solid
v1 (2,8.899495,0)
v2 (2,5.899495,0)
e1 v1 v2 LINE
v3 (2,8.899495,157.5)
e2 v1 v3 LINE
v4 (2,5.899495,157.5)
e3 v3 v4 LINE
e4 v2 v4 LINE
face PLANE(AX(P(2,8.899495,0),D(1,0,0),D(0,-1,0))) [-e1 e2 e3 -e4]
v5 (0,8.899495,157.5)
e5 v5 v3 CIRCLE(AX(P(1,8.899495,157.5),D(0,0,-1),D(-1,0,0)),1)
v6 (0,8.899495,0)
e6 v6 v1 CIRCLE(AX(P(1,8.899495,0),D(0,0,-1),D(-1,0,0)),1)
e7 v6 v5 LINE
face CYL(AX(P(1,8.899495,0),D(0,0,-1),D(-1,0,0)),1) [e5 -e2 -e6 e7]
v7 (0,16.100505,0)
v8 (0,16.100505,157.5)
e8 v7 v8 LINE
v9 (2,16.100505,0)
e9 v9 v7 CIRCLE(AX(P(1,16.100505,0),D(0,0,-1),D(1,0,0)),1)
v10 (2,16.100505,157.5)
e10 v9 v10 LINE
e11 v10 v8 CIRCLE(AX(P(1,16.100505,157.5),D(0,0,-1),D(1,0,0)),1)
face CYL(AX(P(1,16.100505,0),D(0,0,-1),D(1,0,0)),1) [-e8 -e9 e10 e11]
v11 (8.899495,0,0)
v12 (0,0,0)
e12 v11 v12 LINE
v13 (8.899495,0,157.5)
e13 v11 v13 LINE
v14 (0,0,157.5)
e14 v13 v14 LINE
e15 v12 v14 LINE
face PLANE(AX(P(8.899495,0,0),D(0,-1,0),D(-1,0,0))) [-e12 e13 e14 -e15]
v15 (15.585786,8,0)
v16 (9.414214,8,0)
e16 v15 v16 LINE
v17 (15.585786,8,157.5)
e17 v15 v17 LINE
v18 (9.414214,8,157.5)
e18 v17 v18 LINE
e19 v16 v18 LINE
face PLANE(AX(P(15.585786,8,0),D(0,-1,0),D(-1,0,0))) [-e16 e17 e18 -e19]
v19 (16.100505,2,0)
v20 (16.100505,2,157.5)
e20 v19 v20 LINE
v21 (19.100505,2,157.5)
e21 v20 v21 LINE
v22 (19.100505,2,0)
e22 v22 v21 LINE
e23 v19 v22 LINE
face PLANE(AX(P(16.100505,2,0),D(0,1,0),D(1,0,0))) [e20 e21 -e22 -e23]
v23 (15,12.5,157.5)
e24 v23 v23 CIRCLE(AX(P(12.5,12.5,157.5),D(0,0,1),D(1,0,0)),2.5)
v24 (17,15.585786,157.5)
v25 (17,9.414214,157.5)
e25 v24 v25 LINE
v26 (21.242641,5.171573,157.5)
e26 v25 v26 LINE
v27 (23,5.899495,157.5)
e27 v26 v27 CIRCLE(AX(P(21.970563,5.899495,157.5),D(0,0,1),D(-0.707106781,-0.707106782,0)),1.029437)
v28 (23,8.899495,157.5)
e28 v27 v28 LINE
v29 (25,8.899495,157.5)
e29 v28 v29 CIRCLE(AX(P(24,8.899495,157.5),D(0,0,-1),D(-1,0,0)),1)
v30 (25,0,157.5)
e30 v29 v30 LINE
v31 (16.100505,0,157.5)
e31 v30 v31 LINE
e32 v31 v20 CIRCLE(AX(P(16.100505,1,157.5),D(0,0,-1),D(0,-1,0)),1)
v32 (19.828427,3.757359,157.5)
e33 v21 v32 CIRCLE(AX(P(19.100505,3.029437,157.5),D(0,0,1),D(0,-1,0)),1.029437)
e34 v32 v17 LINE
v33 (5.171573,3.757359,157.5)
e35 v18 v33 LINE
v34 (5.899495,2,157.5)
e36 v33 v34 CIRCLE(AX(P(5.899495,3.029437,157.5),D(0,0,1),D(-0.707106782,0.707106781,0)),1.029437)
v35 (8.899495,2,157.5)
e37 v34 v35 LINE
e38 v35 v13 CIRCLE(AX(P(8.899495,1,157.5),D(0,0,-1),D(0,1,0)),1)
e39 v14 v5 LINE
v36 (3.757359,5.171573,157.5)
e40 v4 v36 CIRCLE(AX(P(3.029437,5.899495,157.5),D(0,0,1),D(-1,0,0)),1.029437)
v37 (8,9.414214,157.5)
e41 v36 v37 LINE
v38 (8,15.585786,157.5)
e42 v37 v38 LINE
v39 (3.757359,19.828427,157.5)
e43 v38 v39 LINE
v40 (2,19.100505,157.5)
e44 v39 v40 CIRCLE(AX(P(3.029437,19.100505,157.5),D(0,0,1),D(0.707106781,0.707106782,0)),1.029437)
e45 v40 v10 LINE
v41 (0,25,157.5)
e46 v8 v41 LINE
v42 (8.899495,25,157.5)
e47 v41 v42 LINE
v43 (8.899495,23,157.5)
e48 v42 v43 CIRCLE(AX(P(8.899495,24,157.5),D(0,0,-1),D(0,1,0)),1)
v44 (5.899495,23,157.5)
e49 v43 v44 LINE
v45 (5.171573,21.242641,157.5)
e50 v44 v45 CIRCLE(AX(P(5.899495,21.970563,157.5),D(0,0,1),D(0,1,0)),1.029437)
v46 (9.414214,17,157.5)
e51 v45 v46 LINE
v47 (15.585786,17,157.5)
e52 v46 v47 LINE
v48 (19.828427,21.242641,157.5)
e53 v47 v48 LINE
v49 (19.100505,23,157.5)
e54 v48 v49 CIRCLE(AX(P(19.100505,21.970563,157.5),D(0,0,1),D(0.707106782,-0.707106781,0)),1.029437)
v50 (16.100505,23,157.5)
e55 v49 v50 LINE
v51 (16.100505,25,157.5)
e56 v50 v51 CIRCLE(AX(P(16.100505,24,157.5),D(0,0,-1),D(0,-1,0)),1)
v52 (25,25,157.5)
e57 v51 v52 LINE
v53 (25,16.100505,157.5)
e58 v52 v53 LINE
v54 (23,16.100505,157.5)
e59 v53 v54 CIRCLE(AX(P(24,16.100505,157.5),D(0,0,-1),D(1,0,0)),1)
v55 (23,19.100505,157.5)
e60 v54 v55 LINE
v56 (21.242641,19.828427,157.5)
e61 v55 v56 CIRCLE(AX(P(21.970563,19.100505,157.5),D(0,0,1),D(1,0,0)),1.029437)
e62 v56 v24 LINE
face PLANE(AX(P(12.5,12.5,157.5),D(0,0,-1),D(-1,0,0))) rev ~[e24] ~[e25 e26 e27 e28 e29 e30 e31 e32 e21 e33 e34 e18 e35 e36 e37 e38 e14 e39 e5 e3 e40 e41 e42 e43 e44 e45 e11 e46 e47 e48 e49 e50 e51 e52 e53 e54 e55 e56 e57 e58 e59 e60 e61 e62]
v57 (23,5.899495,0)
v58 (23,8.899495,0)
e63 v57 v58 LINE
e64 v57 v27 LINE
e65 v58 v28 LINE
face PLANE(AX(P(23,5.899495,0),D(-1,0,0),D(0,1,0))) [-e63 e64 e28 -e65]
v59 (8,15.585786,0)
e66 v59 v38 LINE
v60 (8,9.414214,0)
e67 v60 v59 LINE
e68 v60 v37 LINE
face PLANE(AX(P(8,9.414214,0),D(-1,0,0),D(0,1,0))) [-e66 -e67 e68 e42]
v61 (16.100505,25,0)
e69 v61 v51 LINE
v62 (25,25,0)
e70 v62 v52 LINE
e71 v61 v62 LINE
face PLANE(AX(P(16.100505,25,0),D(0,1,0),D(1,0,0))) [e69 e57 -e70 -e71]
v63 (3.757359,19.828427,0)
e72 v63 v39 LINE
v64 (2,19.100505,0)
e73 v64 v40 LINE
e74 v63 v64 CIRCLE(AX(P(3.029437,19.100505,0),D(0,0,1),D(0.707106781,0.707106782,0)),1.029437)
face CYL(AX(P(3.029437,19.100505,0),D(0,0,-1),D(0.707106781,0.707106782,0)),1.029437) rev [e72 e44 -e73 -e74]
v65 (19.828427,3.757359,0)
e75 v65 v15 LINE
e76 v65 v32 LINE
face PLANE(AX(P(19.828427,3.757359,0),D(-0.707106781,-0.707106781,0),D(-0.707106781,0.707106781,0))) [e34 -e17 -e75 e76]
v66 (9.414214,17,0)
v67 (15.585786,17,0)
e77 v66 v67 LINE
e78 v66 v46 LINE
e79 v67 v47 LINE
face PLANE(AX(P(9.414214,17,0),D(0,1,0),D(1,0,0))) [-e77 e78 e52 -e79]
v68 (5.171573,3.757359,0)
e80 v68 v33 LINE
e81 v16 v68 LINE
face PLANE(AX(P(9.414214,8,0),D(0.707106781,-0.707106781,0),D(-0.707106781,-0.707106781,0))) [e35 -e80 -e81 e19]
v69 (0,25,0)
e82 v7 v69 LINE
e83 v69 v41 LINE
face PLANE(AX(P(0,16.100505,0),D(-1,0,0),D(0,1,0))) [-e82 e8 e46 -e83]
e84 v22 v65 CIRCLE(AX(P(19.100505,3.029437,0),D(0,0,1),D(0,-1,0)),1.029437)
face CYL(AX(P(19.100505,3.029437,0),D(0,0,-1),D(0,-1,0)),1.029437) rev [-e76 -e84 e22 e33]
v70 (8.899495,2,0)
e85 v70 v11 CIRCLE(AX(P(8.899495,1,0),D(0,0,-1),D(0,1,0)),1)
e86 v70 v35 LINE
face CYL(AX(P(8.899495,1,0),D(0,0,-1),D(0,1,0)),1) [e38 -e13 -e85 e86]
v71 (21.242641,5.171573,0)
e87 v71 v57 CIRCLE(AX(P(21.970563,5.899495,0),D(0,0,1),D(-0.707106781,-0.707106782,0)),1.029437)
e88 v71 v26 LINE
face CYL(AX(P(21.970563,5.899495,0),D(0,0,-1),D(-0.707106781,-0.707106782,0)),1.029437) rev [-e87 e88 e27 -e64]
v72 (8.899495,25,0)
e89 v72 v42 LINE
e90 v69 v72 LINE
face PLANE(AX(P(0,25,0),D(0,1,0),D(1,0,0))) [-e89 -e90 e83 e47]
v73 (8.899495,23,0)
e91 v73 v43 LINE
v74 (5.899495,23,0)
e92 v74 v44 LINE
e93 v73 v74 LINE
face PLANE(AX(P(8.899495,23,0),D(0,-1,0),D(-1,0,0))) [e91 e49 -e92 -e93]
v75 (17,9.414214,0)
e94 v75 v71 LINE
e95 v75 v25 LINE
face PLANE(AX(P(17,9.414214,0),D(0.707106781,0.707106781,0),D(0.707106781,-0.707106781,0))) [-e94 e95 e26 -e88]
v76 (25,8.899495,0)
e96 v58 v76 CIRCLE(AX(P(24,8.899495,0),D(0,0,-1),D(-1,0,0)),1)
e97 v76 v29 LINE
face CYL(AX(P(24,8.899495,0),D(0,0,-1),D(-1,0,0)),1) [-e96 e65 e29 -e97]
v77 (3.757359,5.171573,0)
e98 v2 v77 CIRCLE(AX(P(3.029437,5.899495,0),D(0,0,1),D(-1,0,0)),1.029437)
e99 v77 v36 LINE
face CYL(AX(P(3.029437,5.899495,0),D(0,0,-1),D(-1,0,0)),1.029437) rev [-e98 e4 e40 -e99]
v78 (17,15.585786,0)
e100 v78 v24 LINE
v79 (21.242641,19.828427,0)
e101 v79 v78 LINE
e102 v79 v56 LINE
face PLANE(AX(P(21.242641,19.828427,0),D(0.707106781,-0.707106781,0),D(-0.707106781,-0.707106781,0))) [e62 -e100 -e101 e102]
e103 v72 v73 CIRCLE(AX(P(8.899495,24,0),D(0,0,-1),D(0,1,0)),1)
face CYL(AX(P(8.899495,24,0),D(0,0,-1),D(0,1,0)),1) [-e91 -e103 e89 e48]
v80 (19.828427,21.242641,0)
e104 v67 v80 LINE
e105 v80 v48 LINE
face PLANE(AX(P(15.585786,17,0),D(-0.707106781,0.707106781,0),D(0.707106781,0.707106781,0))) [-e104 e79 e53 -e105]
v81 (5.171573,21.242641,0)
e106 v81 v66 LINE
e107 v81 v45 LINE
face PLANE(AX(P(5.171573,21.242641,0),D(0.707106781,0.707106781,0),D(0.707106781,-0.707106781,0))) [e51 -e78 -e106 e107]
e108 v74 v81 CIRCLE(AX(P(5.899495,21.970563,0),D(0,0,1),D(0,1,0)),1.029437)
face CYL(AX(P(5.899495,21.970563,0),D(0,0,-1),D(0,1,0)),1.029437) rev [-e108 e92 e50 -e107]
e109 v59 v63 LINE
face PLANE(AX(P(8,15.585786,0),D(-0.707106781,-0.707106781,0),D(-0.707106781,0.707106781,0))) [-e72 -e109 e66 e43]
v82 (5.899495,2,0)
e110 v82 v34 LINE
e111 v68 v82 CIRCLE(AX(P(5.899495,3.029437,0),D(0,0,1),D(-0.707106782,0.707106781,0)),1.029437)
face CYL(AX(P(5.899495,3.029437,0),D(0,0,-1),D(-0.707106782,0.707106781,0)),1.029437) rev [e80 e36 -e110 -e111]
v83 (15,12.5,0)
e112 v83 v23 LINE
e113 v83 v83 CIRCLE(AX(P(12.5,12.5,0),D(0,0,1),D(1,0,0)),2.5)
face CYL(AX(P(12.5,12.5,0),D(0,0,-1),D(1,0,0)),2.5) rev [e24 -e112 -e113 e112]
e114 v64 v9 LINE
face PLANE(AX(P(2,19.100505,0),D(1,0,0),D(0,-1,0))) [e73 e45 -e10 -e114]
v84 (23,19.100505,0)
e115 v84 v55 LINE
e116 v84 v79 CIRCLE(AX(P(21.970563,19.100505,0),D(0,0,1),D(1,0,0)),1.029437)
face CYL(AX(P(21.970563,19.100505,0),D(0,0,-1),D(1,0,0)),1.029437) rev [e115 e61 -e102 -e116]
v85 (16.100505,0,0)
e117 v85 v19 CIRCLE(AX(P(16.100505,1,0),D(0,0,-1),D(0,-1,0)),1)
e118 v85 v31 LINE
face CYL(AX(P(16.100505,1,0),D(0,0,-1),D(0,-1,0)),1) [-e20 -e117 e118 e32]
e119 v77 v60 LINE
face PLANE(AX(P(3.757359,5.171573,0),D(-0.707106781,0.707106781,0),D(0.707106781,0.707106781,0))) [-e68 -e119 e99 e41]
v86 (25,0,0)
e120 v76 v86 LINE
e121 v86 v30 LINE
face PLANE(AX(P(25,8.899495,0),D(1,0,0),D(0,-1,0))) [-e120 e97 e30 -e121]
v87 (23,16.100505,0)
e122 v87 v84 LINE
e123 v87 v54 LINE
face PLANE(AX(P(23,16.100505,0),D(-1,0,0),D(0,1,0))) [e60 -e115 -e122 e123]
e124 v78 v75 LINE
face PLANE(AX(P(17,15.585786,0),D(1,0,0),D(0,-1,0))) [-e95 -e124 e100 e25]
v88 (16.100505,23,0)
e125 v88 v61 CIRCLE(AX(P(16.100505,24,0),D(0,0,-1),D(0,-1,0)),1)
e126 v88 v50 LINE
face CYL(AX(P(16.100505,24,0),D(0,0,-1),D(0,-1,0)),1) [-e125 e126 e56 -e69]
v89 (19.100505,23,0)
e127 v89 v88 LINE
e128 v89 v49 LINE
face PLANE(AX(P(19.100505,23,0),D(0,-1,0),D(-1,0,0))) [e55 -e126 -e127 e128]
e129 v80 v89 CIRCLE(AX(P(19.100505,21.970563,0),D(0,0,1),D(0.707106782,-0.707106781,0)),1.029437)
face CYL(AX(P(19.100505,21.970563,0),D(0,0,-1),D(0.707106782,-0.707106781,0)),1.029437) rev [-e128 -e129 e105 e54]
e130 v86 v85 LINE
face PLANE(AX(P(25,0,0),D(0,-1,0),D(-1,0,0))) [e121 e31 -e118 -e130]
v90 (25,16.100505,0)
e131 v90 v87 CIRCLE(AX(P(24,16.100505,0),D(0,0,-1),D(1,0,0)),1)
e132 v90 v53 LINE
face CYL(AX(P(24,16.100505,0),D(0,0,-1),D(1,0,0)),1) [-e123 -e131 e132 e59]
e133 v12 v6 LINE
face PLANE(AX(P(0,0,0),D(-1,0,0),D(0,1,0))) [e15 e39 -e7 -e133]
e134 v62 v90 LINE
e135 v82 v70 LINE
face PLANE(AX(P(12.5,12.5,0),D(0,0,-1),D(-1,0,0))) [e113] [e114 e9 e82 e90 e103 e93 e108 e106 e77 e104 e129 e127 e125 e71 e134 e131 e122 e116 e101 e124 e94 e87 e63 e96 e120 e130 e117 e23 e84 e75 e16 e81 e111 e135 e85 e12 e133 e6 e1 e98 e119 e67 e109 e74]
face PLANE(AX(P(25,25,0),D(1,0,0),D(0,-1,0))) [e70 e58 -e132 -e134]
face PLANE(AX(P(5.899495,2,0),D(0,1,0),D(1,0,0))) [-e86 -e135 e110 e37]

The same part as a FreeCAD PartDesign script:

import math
import FreeCAD as App
import Part
import Sketcher

V = App.Vector

doc = App.newDocument("Part")
body = doc.addObject("PartDesign::Body", "Body")

# Sketch on XY plane
sketch1 = body.newObject("Sketcher::SketchObject", "Sketch")
sketch1.AttachmentSupport = (doc.getObject("XY_Plane"), [""])
sketch1.MapMode = "FlatFace"
sketch1.addGeometry([
    Part.ArcOfCircle(Part.Circle(V(16.100505, 1, 0), V(0, 0, 1), 1), math.radians(90), math.radians(270)),  # 0
    Part.LineSegment(V(16.100505, 0, 0), V(25, 0, 0)),  # 1
    Part.LineSegment(V(25, 0, 0), V(25, 8.899495, 0)),  # 2
    Part.ArcOfCircle(Part.Circle(V(24, 8.899495, 0), V(0, 0, 1), 1), math.radians(0), math.radians(180)),  # 3
    Part.LineSegment(V(23, 8.899495, 0), V(23, 5.899495, 0)),  # 4
    Part.ArcOfCircle(Part.Circle(V(21.970563, 5.899495, 0), V(0, 0, 1), 1.029437), math.radians(-135), math.radians(0)),  # 5
    Part.LineSegment(V(21.242641, 5.171573, 0), V(17, 9.414214, 0)),  # 6
    Part.LineSegment(V(17, 9.414214, 0), V(17, 15.585786, 0)),  # 7
    Part.LineSegment(V(17, 15.585786, 0), V(21.242641, 19.828427, 0)),  # 8
    Part.ArcOfCircle(Part.Circle(V(21.970563, 19.100505, 0), V(0, 0, 1), 1.029437), math.radians(0), math.radians(135)),  # 9
    Part.LineSegment(V(23, 19.100505, 0), V(23, 16.100505, 0)),  # 10
    Part.ArcOfCircle(Part.Circle(V(24, 16.100505, 0), V(0, 0, 1), 1), math.radians(180), math.radians(360)),  # 11
    Part.LineSegment(V(25, 16.100505, 0), V(25, 25, 0)),  # 12
    Part.LineSegment(V(25, 25, 0), V(16.100505, 25, 0)),  # 13
    Part.ArcOfCircle(Part.Circle(V(16.100505, 24, 0), V(0, 0, 1), 1), math.radians(90), math.radians(270)),  # 14
    Part.LineSegment(V(16.100505, 23, 0), V(19.100505, 23, 0)),  # 15
    Part.ArcOfCircle(Part.Circle(V(19.100505, 21.970563, 0), V(0, 0, 1), 1.029437), math.radians(-45), math.radians(90)),  # 16
    Part.LineSegment(V(19.828427, 21.242641, 0), V(15.585786, 17, 0)),  # 17
    Part.LineSegment(V(15.585786, 17, 0), V(9.414214, 17, 0)),  # 18
    Part.LineSegment(V(9.414214, 17, 0), V(5.171573, 21.242641, 0)),  # 19
    Part.ArcOfCircle(Part.Circle(V(5.899495, 21.970563, 0), V(0, 0, 1), 1.029437), math.radians(90), math.radians(225)),  # 20
    Part.LineSegment(V(5.899495, 23, 0), V(8.899495, 23, 0)),  # 21
    Part.ArcOfCircle(Part.Circle(V(8.899495, 24, 0), V(0, 0, 1), 1), math.radians(-90), math.radians(90)),  # 22
    Part.LineSegment(V(8.899495, 25, 0), V(0, 25, 0)),  # 23
    Part.LineSegment(V(0, 25, 0), V(0, 16.100505, 0)),  # 24
    Part.ArcOfCircle(Part.Circle(V(1, 16.100505, 0), V(0, 0, 1), 1), math.radians(180), math.radians(360)),  # 25
    Part.LineSegment(V(2, 16.100505, 0), V(2, 19.100505, 0)),  # 26
    Part.ArcOfCircle(Part.Circle(V(3.029437, 19.100505, 0), V(0, 0, 1), 1.029437), math.radians(45), math.radians(180)),  # 27
    Part.LineSegment(V(3.757359, 19.828427, 0), V(8, 15.585786, 0)),  # 28
    Part.LineSegment(V(8, 15.585786, 0), V(8, 9.414214, 0)),  # 29
    Part.LineSegment(V(8, 9.414214, 0), V(3.757359, 5.171573, 0)),  # 30
    Part.ArcOfCircle(Part.Circle(V(3.029437, 5.899495, 0), V(0, 0, 1), 1.029437), math.radians(180), math.radians(315)),  # 31
    Part.LineSegment(V(2, 5.899495, 0), V(2, 8.899495, 0)),  # 32
    Part.ArcOfCircle(Part.Circle(V(1, 8.899495, 0), V(0, 0, 1), 1), math.radians(0), math.radians(180)),  # 33
    Part.LineSegment(V(0, 8.899495, 0), V(0, 0, 0)),  # 34
    Part.LineSegment(V(0, 0, 0), V(8.899495, 0, 0)),  # 35
    Part.ArcOfCircle(Part.Circle(V(8.899495, 1, 0), V(0, 0, 1), 1), math.radians(-90), math.radians(90)),  # 36
    Part.LineSegment(V(8.899495, 2, 0), V(5.899495, 2, 0)),  # 37
    Part.ArcOfCircle(Part.Circle(V(5.899495, 3.029437, 0), V(0, 0, 1), 1.029437), math.radians(135), math.radians(270)),  # 38
    Part.LineSegment(V(5.171573, 3.757359, 0), V(9.414214, 8, 0)),  # 39
    Part.LineSegment(V(9.414214, 8, 0), V(15.585786, 8, 0)),  # 40
    Part.LineSegment(V(15.585786, 8, 0), V(19.828427, 3.757359, 0)),  # 41
    Part.ArcOfCircle(Part.Circle(V(19.100505, 3.029437, 0), V(0, 0, 1), 1.029437), math.radians(-90), math.radians(45)),  # 42
    Part.LineSegment(V(19.100505, 2, 0), V(16.100505, 2, 0)),  # 43
    Part.Circle(V(12.5, 12.5, 0), V(0, 0, 1), 2.5),  # 44
], False)
sketch1.addConstraint([
    Sketcher.Constraint("Tangent", 0, 2, 1, 1),
    Sketcher.Constraint("Coincident", 1, 2, 2, 1),
    Sketcher.Constraint("Tangent", 2, 2, 3, 1),
    Sketcher.Constraint("Tangent", 3, 2, 4, 1),
    Sketcher.Constraint("Tangent", 4, 2, 5, 2),
    Sketcher.Constraint("Tangent", 5, 1, 6, 1),
    Sketcher.Constraint("Coincident", 6, 2, 7, 1),
    Sketcher.Constraint("Coincident", 7, 2, 8, 1),
    Sketcher.Constraint("Tangent", 8, 2, 9, 2),
    Sketcher.Constraint("Tangent", 9, 1, 10, 1),
    Sketcher.Constraint("Tangent", 10, 2, 11, 1),
    Sketcher.Constraint("Tangent", 11, 2, 12, 1),
    Sketcher.Constraint("Coincident", 12, 2, 13, 1),
    Sketcher.Constraint("Tangent", 13, 2, 14, 1),
    Sketcher.Constraint("Tangent", 14, 2, 15, 1),
    Sketcher.Constraint("Tangent", 15, 2, 16, 2),
    Sketcher.Constraint("Tangent", 16, 1, 17, 1),
    Sketcher.Constraint("Coincident", 17, 2, 18, 1),
    Sketcher.Constraint("Coincident", 18, 2, 19, 1),
    Sketcher.Constraint("Tangent", 19, 2, 20, 2),
    Sketcher.Constraint("Tangent", 20, 1, 21, 1),
    Sketcher.Constraint("Tangent", 21, 2, 22, 1),
    Sketcher.Constraint("Tangent", 22, 2, 23, 1),
    Sketcher.Constraint("Coincident", 23, 2, 24, 1),
    Sketcher.Constraint("Tangent", 24, 2, 25, 1),
    Sketcher.Constraint("Tangent", 25, 2, 26, 1),
    Sketcher.Constraint("Tangent", 26, 2, 27, 2),
    Sketcher.Constraint("Tangent", 27, 1, 28, 1),
    Sketcher.Constraint("Coincident", 28, 2, 29, 1),
    Sketcher.Constraint("Coincident", 29, 2, 30, 1),
    Sketcher.Constraint("Tangent", 30, 2, 31, 2),
    Sketcher.Constraint("Tangent", 31, 1, 32, 1),
    Sketcher.Constraint("Tangent", 32, 2, 33, 1),
    Sketcher.Constraint("Tangent", 33, 2, 34, 1),
    Sketcher.Constraint("Coincident", 34, 2, 35, 1),
    Sketcher.Constraint("Tangent", 35, 2, 36, 1),
    Sketcher.Constraint("Tangent", 36, 2, 37, 1),
    Sketcher.Constraint("Tangent", 37, 2, 38, 2),
    Sketcher.Constraint("Tangent", 38, 1, 39, 1),
    Sketcher.Constraint("Coincident", 39, 2, 40, 1),
    Sketcher.Constraint("Coincident", 40, 2, 41, 1),
    Sketcher.Constraint("Tangent", 41, 2, 42, 2),
    Sketcher.Constraint("Tangent", 42, 1, 43, 1),
    Sketcher.Constraint("Tangent", 43, 2, 0, 1),
    Sketcher.Constraint("Horizontal", 1),
    Sketcher.Constraint("Vertical", 2),
    Sketcher.Constraint("Vertical", 4),
    Sketcher.Constraint("Vertical", 7),
    Sketcher.Constraint("Vertical", 10),
    Sketcher.Constraint("Vertical", 12),
    Sketcher.Constraint("Horizontal", 13),
    Sketcher.Constraint("Horizontal", 15),
    Sketcher.Constraint("Horizontal", 18),
    Sketcher.Constraint("Horizontal", 21),
    Sketcher.Constraint("Horizontal", 23),
    Sketcher.Constraint("Vertical", 24),
    Sketcher.Constraint("Vertical", 26),
    Sketcher.Constraint("Vertical", 29),
    Sketcher.Constraint("Vertical", 32),
    Sketcher.Constraint("Vertical", 34),
    Sketcher.Constraint("Horizontal", 35),
    Sketcher.Constraint("Horizontal", 37),
    Sketcher.Constraint("Horizontal", 40),
    Sketcher.Constraint("Horizontal", 43),
    Sketcher.Constraint("Coincident", 34, 2, -1, 1),
    Sketcher.Constraint("Equal", 0, 3),
    Sketcher.Constraint("Equal", 5, 9),
    Sketcher.Constraint("Equal", 3, 11),
    Sketcher.Constraint("Equal", 11, 14),
    Sketcher.Constraint("Equal", 9, 16),
    Sketcher.Constraint("Equal", 16, 20),
    Sketcher.Constraint("Equal", 14, 22),
    Sketcher.Constraint("Equal", 22, 25),
    Sketcher.Constraint("Equal", 20, 27),
    Sketcher.Constraint("Equal", 27, 31),
    Sketcher.Constraint("Equal", 25, 33),
    Sketcher.Constraint("Equal", 33, 36),
    Sketcher.Constraint("Equal", 31, 38),
    Sketcher.Constraint("Equal", 38, 42),
    Sketcher.Constraint("PointOnObject", 0, 2, -1),
    Sketcher.Constraint("PointOnObject", 23, 2, -2),
    Sketcher.Constraint("Perpendicular", 6, 8),
    Sketcher.Constraint("Parallel", 8, 17),
    Sketcher.Constraint("Perpendicular", 17, 19),
    Sketcher.Constraint("Parallel", 19, 28),
    Sketcher.Constraint("Perpendicular", 28, 30),
    Sketcher.Constraint("Parallel", 30, 39),
    Sketcher.Constraint("Perpendicular", 39, 41),
    Sketcher.Constraint("Horizontal", 16, 3, 20, 3),
    Sketcher.Constraint("Horizontal", 11, 3, 25, 3),
    Sketcher.Constraint("Horizontal", 9, 3, 27, 3),
    Sketcher.Constraint("Horizontal", 5, 3, 31, 3),
    Sketcher.Constraint("Horizontal", 3, 3, 33, 3),
    Sketcher.Constraint("Horizontal", 16, 1, 19, 2),
    Sketcher.Constraint("Horizontal", 7, 2, 28, 2),
    Sketcher.Constraint("Horizontal", 6, 2, 29, 2),
    Sketcher.Constraint("Vertical", 0, 3, 14, 3),
    Sketcher.Constraint("Vertical", 22, 3, 36, 3),
    Sketcher.Constraint("Vertical", 20, 3, 38, 3),
    Sketcher.Constraint("Vertical", 16, 3, 42, 3),
    Sketcher.Constraint("Vertical", 18, 2, 39, 2),
    Sketcher.Constraint("Equal", 15, 21),
    Sketcher.Constraint("Equal", 13, 23),
    Sketcher.Constraint("Equal", 35, 2),
    Sketcher.Constraint("Equal", 43, 4),
    Sketcher.Constraint("Equal", 40, 7),
    Sketcher.Constraint("Equal", 4, 10),
    Sketcher.Constraint("Equal", 2, 12),
    Sketcher.Constraint("Equal", 8, 17),
    Sketcher.Constraint("Diameter", 44, 5.0),
    Sketcher.Constraint("Radius", 0, 1.0),
    Sketcher.Constraint("DistanceX", 15, 1, 15, 2, 3.0),
    Sketcher.Constraint("Distance", 6, 6.0),
    Sketcher.Constraint("DistanceX", -1, 1, 3, 3, 24.0),
    Sketcher.Constraint("DistanceX", -1, 1, 6, 2, 17.0),
    Sketcher.Constraint("DistanceX", -1, 1, 44, 3, 12.5),
    Sketcher.Constraint("DistanceY", -1, 1, 44, 3, 12.5),
    Sketcher.Constraint("DistanceX", 1, 1, 1, 2, 8.899495),
])
pad1 = body.newObject("PartDesign::Pad", "Pad")
pad1.Profile = sketch1
pad1.Length = 157.5

doc.recompute()
